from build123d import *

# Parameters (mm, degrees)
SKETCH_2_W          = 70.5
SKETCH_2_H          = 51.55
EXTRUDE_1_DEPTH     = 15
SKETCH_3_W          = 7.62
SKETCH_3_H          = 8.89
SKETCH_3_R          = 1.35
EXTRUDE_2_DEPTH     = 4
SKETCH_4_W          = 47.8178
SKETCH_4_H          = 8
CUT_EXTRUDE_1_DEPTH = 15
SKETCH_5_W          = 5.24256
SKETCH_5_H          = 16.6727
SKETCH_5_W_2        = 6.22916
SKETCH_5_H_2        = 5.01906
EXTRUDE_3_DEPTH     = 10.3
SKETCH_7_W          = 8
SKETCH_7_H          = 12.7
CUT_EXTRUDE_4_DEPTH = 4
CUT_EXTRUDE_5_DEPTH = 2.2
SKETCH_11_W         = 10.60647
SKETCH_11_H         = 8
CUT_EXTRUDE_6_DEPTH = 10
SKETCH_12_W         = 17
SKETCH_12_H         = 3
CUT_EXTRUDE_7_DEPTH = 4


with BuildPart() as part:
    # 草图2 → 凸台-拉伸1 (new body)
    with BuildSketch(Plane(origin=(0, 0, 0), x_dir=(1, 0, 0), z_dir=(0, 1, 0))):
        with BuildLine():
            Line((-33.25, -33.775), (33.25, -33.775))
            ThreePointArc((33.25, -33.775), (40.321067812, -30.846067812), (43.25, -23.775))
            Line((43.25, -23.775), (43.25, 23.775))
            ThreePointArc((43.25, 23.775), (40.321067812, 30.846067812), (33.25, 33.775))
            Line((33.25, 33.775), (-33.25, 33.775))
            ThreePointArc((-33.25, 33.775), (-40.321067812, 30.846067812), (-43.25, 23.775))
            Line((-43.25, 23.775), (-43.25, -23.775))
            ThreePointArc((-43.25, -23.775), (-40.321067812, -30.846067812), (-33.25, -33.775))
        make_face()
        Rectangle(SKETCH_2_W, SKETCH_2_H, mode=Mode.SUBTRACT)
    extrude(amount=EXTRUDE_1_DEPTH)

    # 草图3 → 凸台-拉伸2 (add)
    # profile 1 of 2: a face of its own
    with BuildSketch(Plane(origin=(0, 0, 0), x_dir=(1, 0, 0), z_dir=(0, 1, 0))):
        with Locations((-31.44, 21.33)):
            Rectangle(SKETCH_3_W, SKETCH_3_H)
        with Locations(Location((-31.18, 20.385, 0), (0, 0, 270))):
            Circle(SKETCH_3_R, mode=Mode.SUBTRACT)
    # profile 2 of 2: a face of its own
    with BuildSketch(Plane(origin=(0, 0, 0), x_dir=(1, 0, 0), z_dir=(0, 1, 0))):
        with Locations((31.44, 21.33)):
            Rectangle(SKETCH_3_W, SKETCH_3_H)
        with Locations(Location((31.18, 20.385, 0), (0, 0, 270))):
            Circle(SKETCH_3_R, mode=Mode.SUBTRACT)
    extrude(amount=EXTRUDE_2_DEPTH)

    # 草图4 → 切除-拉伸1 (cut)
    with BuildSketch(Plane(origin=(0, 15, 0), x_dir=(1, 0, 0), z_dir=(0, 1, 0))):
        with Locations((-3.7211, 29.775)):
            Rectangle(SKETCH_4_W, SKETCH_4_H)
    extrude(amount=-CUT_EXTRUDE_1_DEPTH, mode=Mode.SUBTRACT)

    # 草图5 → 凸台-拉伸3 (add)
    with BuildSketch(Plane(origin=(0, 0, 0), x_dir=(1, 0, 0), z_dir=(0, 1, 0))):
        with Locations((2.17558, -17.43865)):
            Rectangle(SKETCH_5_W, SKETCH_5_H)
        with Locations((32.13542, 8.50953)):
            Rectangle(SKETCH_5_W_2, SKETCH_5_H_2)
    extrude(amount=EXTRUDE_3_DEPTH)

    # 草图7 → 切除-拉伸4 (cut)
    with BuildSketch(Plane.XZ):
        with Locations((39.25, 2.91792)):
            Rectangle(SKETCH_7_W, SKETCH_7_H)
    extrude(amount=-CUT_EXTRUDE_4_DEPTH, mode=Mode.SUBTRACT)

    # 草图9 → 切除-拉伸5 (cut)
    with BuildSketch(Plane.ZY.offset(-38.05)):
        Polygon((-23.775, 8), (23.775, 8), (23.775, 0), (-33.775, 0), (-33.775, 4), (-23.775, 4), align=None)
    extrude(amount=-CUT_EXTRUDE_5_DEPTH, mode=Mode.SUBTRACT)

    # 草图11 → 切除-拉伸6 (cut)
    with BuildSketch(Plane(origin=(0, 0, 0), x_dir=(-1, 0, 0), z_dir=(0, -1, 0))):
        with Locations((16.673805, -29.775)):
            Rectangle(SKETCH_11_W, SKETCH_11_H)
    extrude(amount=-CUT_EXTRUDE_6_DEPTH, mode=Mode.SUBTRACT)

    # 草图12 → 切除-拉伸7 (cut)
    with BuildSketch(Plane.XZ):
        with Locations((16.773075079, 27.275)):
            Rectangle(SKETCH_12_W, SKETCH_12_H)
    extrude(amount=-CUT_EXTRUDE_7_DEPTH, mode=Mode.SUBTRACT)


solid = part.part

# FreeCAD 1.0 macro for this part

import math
import FreeCAD as App
import Part
import Sketcher
from FreeCAD import Vector
Q = App.Units.Quantity


def add_polygon(sketch, points):
    """Adds a closed chain of lines whose ends are joined by coincident constraints."""
    first, n = sketch.GeometryCount, len(points)
    for a, b in zip(points, points[1:] + points[:1]):
        sketch.addGeometry(Part.LineSegment(App.Vector(*a, 0), App.Vector(*b, 0)), False)
    for i in range(n):
        sketch.addConstraint(Sketcher.Constraint("Coincident", first + i, 2, first + (i + 1) % n, 1))

doc = App.newDocument("Part")
body = doc.addObject("PartDesign::Body", "Body")

# Sketch on XZ plane
sketch1 = body.newObject("Sketcher::SketchObject", "Sketch")
sketch1.AttachmentSupport = (doc.getObject("XZ_Plane"), [""])
sketch1.MapMode = "FlatFace"
sketch1.addGeometry(Part.LineSegment(Vector(-33, 34, 0), Vector(33, 34, 0)), False)  # 0
sketch1.addGeometry(Part.ArcOfCircle(Part.Circle(Vector(33, 24, 0), Vector(0, 0, 1), 10), math.radians(0), math.radians(90)), False)  # 1
sketch1.addGeometry(Part.LineSegment(Vector(43, 24, 0), Vector(43, -24, 0)), False)  # 2
sketch1.addGeometry(Part.ArcOfCircle(Part.Circle(Vector(33, -24, 0), Vector(0, 0, 1), 10), math.radians(-90), math.radians(0)), False)  # 3
sketch1.addGeometry(Part.LineSegment(Vector(33, -34, 0), Vector(-33, -34, 0)), False)  # 4
sketch1.addGeometry(Part.ArcOfCircle(Part.Circle(Vector(-33, -24, 0), Vector(0, 0, 1), 10), math.radians(180), math.radians(270)), False)  # 5
sketch1.addGeometry(Part.LineSegment(Vector(-43, -24, 0), Vector(-43, 24, 0)), False)  # 6
sketch1.addGeometry(Part.ArcOfCircle(Part.Circle(Vector(-33, 24, 0), Vector(0, 0, 1), 10), math.radians(90), math.radians(180)), False)  # 7
add_polygon(sketch1, [(35, 26), (-35, 26), (-35, -26), (35, -26)])  # lines 8-11
sketch1.addConstraint(Sketcher.Constraint("Tangent", 0, 2, 1, 2))
sketch1.addConstraint(Sketcher.Constraint("Tangent", 1, 1, 2, 1))
sketch1.addConstraint(Sketcher.Constraint("Tangent", 2, 2, 3, 2))
sketch1.addConstraint(Sketcher.Constraint("Tangent", 3, 1, 4, 1))
sketch1.addConstraint(Sketcher.Constraint("Tangent", 4, 2, 5, 2))
sketch1.addConstraint(Sketcher.Constraint("Tangent", 5, 1, 6, 1))
sketch1.addConstraint(Sketcher.Constraint("Tangent", 6, 2, 7, 2))
sketch1.addConstraint(Sketcher.Constraint("Tangent", 7, 1, 0, 1))
sketch1.addConstraint(Sketcher.Constraint("Horizontal", 0))
sketch1.addConstraint(Sketcher.Constraint("Vertical", 2))
sketch1.addConstraint(Sketcher.Constraint("Horizontal", 4))
sketch1.addConstraint(Sketcher.Constraint("Vertical", 6))
sketch1.addConstraint(Sketcher.Constraint("Horizontal", 8))
sketch1.addConstraint(Sketcher.Constraint("Vertical", 9))
sketch1.addConstraint(Sketcher.Constraint("Horizontal", 10))
sketch1.addConstraint(Sketcher.Constraint("Vertical", 11))
sketch1.addConstraint(Sketcher.Constraint("Equal", 1, 3))
sketch1.addConstraint(Sketcher.Constraint("Equal", 3, 5))
sketch1.addConstraint(Sketcher.Constraint("Equal", 5, 7))
sketch1.addConstraint(Sketcher.Constraint("Symmetric", 1, 3, 5, 3, -1, 1))
sketch1.addConstraint(Sketcher.Constraint("Symmetric", 8, 2, 10, 2, -1, 1))
sketch1.addConstraint(Sketcher.Constraint("Radius", 1, Q("10 mm")))
sketch1.addConstraint(Sketcher.Constraint("DistanceX", 0, 1, 0, 2, Q("66.5 mm")))
sketch1.addConstraint(Sketcher.Constraint("DistanceX", 8, 2, 8, 1, Q("70.5 mm")))
sketch1.addConstraint(Sketcher.Constraint("DistanceY", 7, 3, 8, 2, Q("2 mm")))
sketch1.addConstraint(Sketcher.Constraint("DistanceY", 2, 2, 2, 1, Q("47.55 mm")))
pad1 = body.newObject("PartDesign::Pad", "Pad")
pad1.Profile = sketch1
pad1.Length = 15
pad1.Reversed = True

# Sketch on XZ plane
sketch2 = body.newObject("Sketcher::SketchObject", "Sketch001")
sketch2.AttachmentSupport = (doc.getObject("XZ_Plane"), [""])
sketch2.MapMode = "FlatFace"
add_polygon(sketch2, [(-35.2, -25.8), (-35.2, -16.9), (-27.6, -16.9), (-27.6, -25.8)])  # lines 0-3
sketch2.addGeometry(Part.Circle(Vector(-31.2, -20.4, 0), Vector(0, 0, 1), 1.4), False)  # 4
add_polygon(sketch2, [(27.6, -25.8), (27.6, -16.9), (35.2, -16.9), (35.2, -25.8)])  # lines 5-8
sketch2.addGeometry(Part.Circle(Vector(31.2, -20.4, 0), Vector(0, 0, 1), 1.4), False)  # 9
sketch2.addConstraint(Sketcher.Constraint("Vertical", 0))
sketch2.addConstraint(Sketcher.Constraint("Horizontal", 1))
sketch2.addConstraint(Sketcher.Constraint("Vertical", 2))
sketch2.addConstraint(Sketcher.Constraint("Horizontal", 3))
sketch2.addConstraint(Sketcher.Constraint("Vertical", 5))
sketch2.addConstraint(Sketcher.Constraint("Horizontal", 6))
sketch2.addConstraint(Sketcher.Constraint("Vertical", 7))
sketch2.addConstraint(Sketcher.Constraint("Horizontal", 8))
sketch2.addConstraint(Sketcher.Constraint("Equal", 4, 9))
sketch2.addConstraint(Sketcher.Constraint("Symmetric", 4, 3, 9, 3, -2))
sketch2.addConstraint(Sketcher.Constraint("Symmetric", 1, 2, 5, 2, -2))
sketch2.addConstraint(Sketcher.Constraint("Symmetric", 3, 2, 7, 2, -2))
sketch2.addConstraint(Sketcher.Constraint("Diameter", 4, Q("2.7 mm")))
sketch2.addConstraint(Sketcher.Constraint("DistanceX", 1, 1, 1, 2, Q("7.62 mm")))
sketch2.addConstraint(Sketcher.Constraint("DistanceY", 0, 1, 0, 2, Q("8.89 mm")))
sketch2.addConstraint(Sketcher.Constraint("DistanceY", 4, 3, 0, 2, Q("3.5 mm")))
sketch2.addConstraint(Sketcher.Constraint("DistanceX", 4, 3, -1, 1, Q("31.18 mm")))
sketch2.addConstraint(Sketcher.Constraint("DistanceX", 0, 2, -1, 1, Q("35.25 mm")))
sketch2.addConstraint(Sketcher.Constraint("DistanceY", 4, 3, -1, 1, Q("20.385 mm")))
pad2 = body.newObject("PartDesign::Pad", "Pad001")
pad2.Profile = sketch2
pad2.Length = 4
pad2.Reversed = True

# Sketch on XZ plane
sketch3 = body.newObject("Sketcher::SketchObject", "Sketch002")
sketch3.AttachmentSupport = (doc.getObject("XZ_Plane"), [""])
sketch3.MapMode = "FlatFace"
sketch3.AttachmentOffset = App.Placement(Vector(0, 0, -15), App.Rotation())
add_polygon(sketch3, [(-28, -34), (-28, -26), (20, -26), (20, -34)])  # lines 0-3
sketch3.addConstraint(Sketcher.Constraint("Vertical", 0))
sketch3.addConstraint(Sketcher.Constraint("Horizontal", 1))
sketch3.addConstraint(Sketcher.Constraint("Vertical", 2))
sketch3.addConstraint(Sketcher.Constraint("Horizontal", 3))
sketch3.addConstraint(Sketcher.Constraint("DistanceY", 0, 1, 0, 2, Q("8 mm")))
sketch3.addConstraint(Sketcher.Constraint("DistanceX", 0, 2, -1, 1, Q("27.63 mm")))
sketch3.addConstraint(Sketcher.Constraint("DistanceX", 1, 1, 1, 2, Q("47.8178 mm")))
sketch3.addConstraint(Sketcher.Constraint("DistanceY", 0, 2, -1, 1, Q("25.775 mm")))
pocket1 = body.newObject("PartDesign::Pocket", "Pocket")
pocket1.Profile = sketch3
pocket1.Length = 15
pocket1.Reversed = True

# Sketch on XZ plane
sketch4 = body.newObject("Sketcher::SketchObject", "Sketch003")
sketch4.AttachmentSupport = (doc.getObject("XZ_Plane"), [""])
sketch4.MapMode = "FlatFace"
add_polygon(sketch4, [(0, 9), (0, 26), (5, 26), (5, 9)])  # lines 0-3
add_polygon(sketch4, [(29, -11), (29, -6), (35, -6), (35, -11)])  # lines 4-7
sketch4.addConstraint(Sketcher.Constraint("Vertical", 0))
sketch4.addConstraint(Sketcher.Constraint("Horizontal", 1))
sketch4.addConstraint(Sketcher.Constraint("Vertical", 2))
sketch4.addConstraint(Sketcher.Constraint("Horizontal", 3))
sketch4.addConstraint(Sketcher.Constraint("Vertical", 4))
sketch4.addConstraint(Sketcher.Constraint("Horizontal", 5))
sketch4.addConstraint(Sketcher.Constraint("Vertical", 6))
sketch4.addConstraint(Sketcher.Constraint("Horizontal", 7))
sketch4.addConstraint(Sketcher.Constraint("DistanceY", 4, 2, -1, 1, Q("6 mm")))
sketch4.addConstraint(Sketcher.Constraint("DistanceX", -1, 1, 5, 2, Q("35.25 mm")))
sketch4.addConstraint(Sketcher.Constraint("DistanceY", 0, 1, 0, 2, Q("16.6727 mm")))
sketch4.addConstraint(Sketcher.Constraint("DistanceY", -1, 1, 0, 2, Q("25.775 mm")))
sketch4.addConstraint(Sketcher.Constraint("DistanceX", 1, 1, 1, 2, Q("5.24256 mm")))
sketch4.addConstraint(Sketcher.Constraint("DistanceX", 5, 1, 5, 2, Q("6.22916 mm")))
sketch4.addConstraint(Sketcher.Constraint("DistanceY", 4, 1, 4, 2, Q("5.01906 mm")))
sketch4.addConstraint(Sketcher.Constraint("DistanceX", 0, 2, -1, 1, Q("0.4457 mm")))
pad3 = body.newObject("PartDesign::Pad", "Pad002")
pad3.Profile = sketch4
pad3.Length = 10.3
pad3.Reversed = True

# Sketch on XZ plane
sketch5 = body.newObject("Sketcher::SketchObject", "Sketch004")
sketch5.AttachmentSupport = (doc.getObject("XZ_Plane"), [""])
sketch5.MapMode = "FlatFace"
add_polygon(sketch5, [(35, 9), (35, -3), (43, -3), (43, 9)])  # lines 0-3
sketch5.addConstraint(Sketcher.Constraint("Vertical", 0))
sketch5.addConstraint(Sketcher.Constraint("Horizontal", 1))
sketch5.addConstraint(Sketcher.Constraint("Vertical", 2))
sketch5.addConstraint(Sketcher.Constraint("Horizontal", 3))
sketch5.addConstraint(Sketcher.Constraint("DistanceX", 1, 1, 1, 2, Q("8 mm")))
sketch5.addConstraint(Sketcher.Constraint("DistanceY", 0, 2, 0, 1, Q("12.7 mm")))
sketch5.addConstraint(Sketcher.Constraint("DistanceX", -1, 1, 0, 2, Q("35.25 mm")))
sketch5.addConstraint(Sketcher.Constraint("DistanceY", 0, 2, -1, 1, Q("3.43208 mm")))
pocket2 = body.newObject("PartDesign::Pocket", "Pocket001")
pocket2.Profile = sketch5
pocket2.Length = 4

# Sketch on YZ plane
sketch6 = body.newObject("Sketcher::SketchObject", "Sketch005")
sketch6.AttachmentSupport = (doc.getObject("YZ_Plane"), [""])
sketch6.MapMode = "FlatFace"
sketch6.AttachmentOffset = App.Placement(Vector(0, 0, 38.05), App.Rotation())
add_polygon(sketch6, [(8, 23.8), (8, -23.8), (4, -23.8), (4, -33.8), (0, -33.8), (0, 23.8)])  # lines 0-5
sketch6.addConstraint(Sketcher.Constraint("Vertical", 0))
sketch6.addConstraint(Sketcher.Constraint("Horizontal", 1))
sketch6.addConstraint(Sketcher.Constraint("Vertical", 2))
sketch6.addConstraint(Sketcher.Constraint("Horizontal", 3))
sketch6.addConstraint(Sketcher.Constraint("Vertical", 4))
sketch6.addConstraint(Sketcher.Constraint("Horizontal", 5))
sketch6.addConstraint(Sketcher.Constraint("PointOnObject", 3, 2, -2))
sketch6.addConstraint(Sketcher.Constraint("Equal", 1, 3))
sketch6.addConstraint(Sketcher.Constraint("DistanceX", 1, 2, 1, 1, Q("4 mm")))
sketch6.addConstraint(Sketcher.Constraint("DistanceY", 2, 2, 2, 1, Q("10 mm")))
sketch6.addConstraint(Sketcher.Constraint("DistanceY", 0, 2, 0, 1, Q("47.55 mm")))
sketch6.addConstraint(Sketcher.Constraint("DistanceY", 0, 2, -1, 1, Q("23.775 mm")))
pocket3 = body.newObject("PartDesign::Pocket", "Pocket002")
pocket3.Profile = sketch6
pocket3.Length = 2.2
pocket3.Reversed = True

# Sketch on XZ plane
sketch7 = body.newObject("Sketcher::SketchObject", "Sketch006")
sketch7.AttachmentSupport = (doc.getObject("XZ_Plane"), [""])
sketch7.MapMode = "FlatFace"
add_polygon(sketch7, [(-11, 26), (-11, 34), (-22, 34), (-22, 26)])  # lines 0-3
sketch7.addConstraint(Sketcher.Constraint("Vertical", 0))
sketch7.addConstraint(Sketcher.Constraint("Horizontal", 1))
sketch7.addConstraint(Sketcher.Constraint("Vertical", 2))
sketch7.addConstraint(Sketcher.Constraint("Horizontal", 3))
sketch7.addConstraint(Sketcher.Constraint("DistanceY", 0, 1, 0, 2, Q("8 mm")))
sketch7.addConstraint(Sketcher.Constraint("DistanceY", -1, 1, 0, 2, Q("33.775 mm")))
sketch7.addConstraint(Sketcher.Constraint("DistanceX", 1, 2, 1, 1, Q("10.60647 mm")))
sketch7.addConstraint(Sketcher.Constraint("DistanceX", 0, 2, -1, 1, Q("11.37057 mm")))
pocket4 = body.newObject("PartDesign::Pocket", "Pocket003")
pocket4.Profile = sketch7
pocket4.Length = 10

# Sketch on XZ plane
sketch8 = body.newObject("Sketcher::SketchObject", "Sketch007")
sketch8.AttachmentSupport = (doc.getObject("XZ_Plane"), [""])
sketch8.MapMode = "FlatFace"
add_polygon(sketch8, [(8.3, 28.8), (8.3, 25.8), (25.3, 25.8), (25.3, 28.8)])  # lines 0-3
sketch8.addConstraint(Sketcher.Constraint("Vertical", 0))
sketch8.addConstraint(Sketcher.Constraint("Horizontal", 1))
sketch8.addConstraint(Sketcher.Constraint("Vertical", 2))
sketch8.addConstraint(Sketcher.Constraint("Horizontal", 3))
sketch8.addConstraint(Sketcher.Constraint("DistanceX", 1, 1, 1, 2, Q("17 mm")))
sketch8.addConstraint(Sketcher.Constraint("DistanceY", 0, 2, 0, 1, Q("3 mm")))
sketch8.addConstraint(Sketcher.Constraint("DistanceY", -1, 1, 0, 2, Q("25.775 mm")))
sketch8.addConstraint(Sketcher.Constraint("DistanceX", -1, 1, 0, 2, Q("8.273075 mm")))
pocket5 = body.newObject("PartDesign::Pocket", "Pocket004")
pocket5.Profile = sketch8
pocket5.Length = 4

doc.recompute()
